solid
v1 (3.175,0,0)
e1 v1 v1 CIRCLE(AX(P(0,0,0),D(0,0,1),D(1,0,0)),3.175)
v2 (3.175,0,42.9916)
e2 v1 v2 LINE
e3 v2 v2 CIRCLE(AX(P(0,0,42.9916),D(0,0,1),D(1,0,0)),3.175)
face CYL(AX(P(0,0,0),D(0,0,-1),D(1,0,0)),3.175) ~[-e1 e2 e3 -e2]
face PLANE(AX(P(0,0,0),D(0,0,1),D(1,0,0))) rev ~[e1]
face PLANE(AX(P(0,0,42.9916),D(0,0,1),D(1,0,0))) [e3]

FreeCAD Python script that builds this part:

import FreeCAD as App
import Part
import Sketcher

V = App.Vector
Q = App.Units.Quantity

doc = App.newDocument("Part")
body = doc.addObject("PartDesign::Body", "Body")

# Sketch on XY plane
sketch1 = body.newObject("Sketcher::SketchObject", "Sketch")
sketch1.AttachmentSupport = (doc.getObject("XY_Plane"), [""])
sketch1.MapMode = "FlatFace"
sketch1.addGeometry(Part.Circle(V(0, 0, 0), V(0, 0, 1), 3.2), False)
sketch1.addConstraint(Sketcher.Constraint("Coincident", 0, 3, -1, 1))
sketch1.addConstraint(Sketcher.Constraint("Diameter", 0, Q("0.25 in")))
pad1 = body.newObject("PartDesign::Pad", "Pad")
pad1.Profile = sketch1
pad1.Length = 42.9916

doc.recompute()
